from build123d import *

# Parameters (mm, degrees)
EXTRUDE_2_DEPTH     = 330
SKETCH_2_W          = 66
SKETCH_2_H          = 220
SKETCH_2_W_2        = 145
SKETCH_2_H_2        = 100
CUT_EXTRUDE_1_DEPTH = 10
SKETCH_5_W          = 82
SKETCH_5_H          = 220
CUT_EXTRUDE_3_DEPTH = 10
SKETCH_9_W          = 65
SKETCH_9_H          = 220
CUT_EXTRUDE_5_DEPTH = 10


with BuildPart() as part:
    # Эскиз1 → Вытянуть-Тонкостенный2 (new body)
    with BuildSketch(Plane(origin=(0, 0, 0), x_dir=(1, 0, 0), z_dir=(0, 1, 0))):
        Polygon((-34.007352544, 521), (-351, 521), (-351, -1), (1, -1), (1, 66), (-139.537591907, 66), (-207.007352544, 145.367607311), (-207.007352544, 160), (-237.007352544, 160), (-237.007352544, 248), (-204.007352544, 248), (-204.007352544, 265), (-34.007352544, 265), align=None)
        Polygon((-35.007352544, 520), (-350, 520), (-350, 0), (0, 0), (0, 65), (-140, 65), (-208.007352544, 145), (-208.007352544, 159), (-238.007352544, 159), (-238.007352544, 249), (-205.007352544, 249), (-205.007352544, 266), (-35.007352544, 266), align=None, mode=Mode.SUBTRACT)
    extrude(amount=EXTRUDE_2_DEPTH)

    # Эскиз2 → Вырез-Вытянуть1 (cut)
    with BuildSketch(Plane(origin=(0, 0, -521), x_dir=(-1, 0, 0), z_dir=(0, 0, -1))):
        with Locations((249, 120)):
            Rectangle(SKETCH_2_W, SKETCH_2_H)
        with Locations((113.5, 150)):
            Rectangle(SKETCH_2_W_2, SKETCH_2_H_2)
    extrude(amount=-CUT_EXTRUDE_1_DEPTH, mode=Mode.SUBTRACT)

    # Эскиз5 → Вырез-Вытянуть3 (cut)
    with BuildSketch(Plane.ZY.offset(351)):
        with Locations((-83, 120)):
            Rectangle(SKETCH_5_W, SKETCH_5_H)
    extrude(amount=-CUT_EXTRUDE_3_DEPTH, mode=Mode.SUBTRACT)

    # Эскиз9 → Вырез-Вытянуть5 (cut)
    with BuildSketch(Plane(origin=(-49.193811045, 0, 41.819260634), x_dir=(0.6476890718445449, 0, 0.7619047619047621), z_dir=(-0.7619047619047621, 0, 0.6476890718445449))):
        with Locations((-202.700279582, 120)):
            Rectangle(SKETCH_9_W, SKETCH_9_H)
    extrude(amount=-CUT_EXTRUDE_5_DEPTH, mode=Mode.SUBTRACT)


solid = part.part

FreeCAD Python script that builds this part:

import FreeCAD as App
import Part
import Sketcher
Q = App.Units.Quantity

doc = App.newDocument("Part")
body = doc.addObject("PartDesign::Body", "Body")

sketch1 = doc.addObject("Sketcher::SketchObject", "Sketch")
body.addObject(sketch1)
sketch1.AttachmentSupport = (doc.XZ_Plane, [""])
sketch1.MapMode = "FlatFace"
sketch1.addGeometry([
    Part.LineSegment(App.Vector(-34.007353, -521, 0), App.Vector(-351, -521, 0)),
    Part.LineSegment(App.Vector(-351, -521, 0), App.Vector(-351, 1, 0)),
    Part.LineSegment(App.Vector(-351, 1, 0), App.Vector(1, 1, 0)),
    Part.LineSegment(App.Vector(1, 1, 0), App.Vector(1, -66, 0)),
    Part.LineSegment(App.Vector(1, -66, 0), App.Vector(-139.537592, -66, 0)),
    Part.LineSegment(App.Vector(-139.537592, -66, 0), App.Vector(-207.007353, -145.367607, 0)),
    Part.LineSegment(App.Vector(-207.007353, -145.367607, 0), App.Vector(-207.007353, -160, 0)),
    Part.LineSegment(App.Vector(-207.007353, -160, 0), App.Vector(-237.007353, -160, 0)),
    Part.LineSegment(App.Vector(-237.007353, -160, 0), App.Vector(-237.007353, -248, 0)),
    Part.LineSegment(App.Vector(-237.007353, -248, 0), App.Vector(-204.007353, -248, 0)),
    Part.LineSegment(App.Vector(-204.007353, -248, 0), App.Vector(-204.007353, -265, 0)),
    Part.LineSegment(App.Vector(-204.007353, -265, 0), App.Vector(-34.007353, -265, 0)),
    Part.LineSegment(App.Vector(-34.007353, -265, 0), App.Vector(-34.007353, -521, 0)),
    Part.LineSegment(App.Vector(-350, -520, 0), App.Vector(-35.007353, -520, 0)),
    Part.LineSegment(App.Vector(-35.007353, -520, 0), App.Vector(-35.007353, -266, 0)),
    Part.LineSegment(App.Vector(-35.007353, -266, 0), App.Vector(-205.007353, -266, 0)),
    Part.LineSegment(App.Vector(-205.007353, -266, 0), App.Vector(-205.007353, -249, 0)),
    Part.LineSegment(App.Vector(-205.007353, -249, 0), App.Vector(-238.007353, -249, 0)),
    Part.LineSegment(App.Vector(-238.007353, -249, 0), App.Vector(-238.007353, -159, 0)),
    Part.LineSegment(App.Vector(-238.007353, -159, 0), App.Vector(-208.007353, -159, 0)),
    Part.LineSegment(App.Vector(-208.007353, -159, 0), App.Vector(-208.007353, -145, 0)),
    Part.LineSegment(App.Vector(-208.007353, -145, 0), App.Vector(-140, -65, 0)),
    Part.LineSegment(App.Vector(-140, -65, 0), App.Vector(0, -65, 0)),
    Part.LineSegment(App.Vector(0, -65, 0), App.Vector(0, 0, 0)),
    Part.LineSegment(App.Vector(0, 0, 0), App.Vector(-350, 0, 0)),
    Part.LineSegment(App.Vector(-350, 0, 0), App.Vector(-350, -520, 0)),
], False)
sketch1.addConstraint([
    Sketcher.Constraint("Coincident", 0, 2, 1, 1),
    Sketcher.Constraint("Coincident", 1, 2, 2, 1),
    Sketcher.Constraint("Coincident", 2, 2, 3, 1),
    Sketcher.Constraint("Coincident", 3, 2, 4, 1),
    Sketcher.Constraint("Coincident", 4, 2, 5, 1),
    Sketcher.Constraint("Coincident", 5, 2, 6, 1),
    Sketcher.Constraint("Coincident", 6, 2, 7, 1),
    Sketcher.Constraint("Coincident", 7, 2, 8, 1),
    Sketcher.Constraint("Coincident", 8, 2, 9, 1),
    Sketcher.Constraint("Coincident", 9, 2, 10, 1),
    Sketcher.Constraint("Coincident", 10, 2, 11, 1),
    Sketcher.Constraint("Coincident", 11, 2, 12, 1),
    Sketcher.Constraint("Coincident", 12, 2, 0, 1),
    Sketcher.Constraint("Coincident", 13, 2, 14, 1),
    Sketcher.Constraint("Coincident", 14, 2, 15, 1),
    Sketcher.Constraint("Coincident", 15, 2, 16, 1),
    Sketcher.Constraint("Coincident", 16, 2, 17, 1),
    Sketcher.Constraint("Coincident", 17, 2, 18, 1),
    Sketcher.Constraint("Coincident", 18, 2, 19, 1),
    Sketcher.Constraint("Coincident", 19, 2, 20, 1),
    Sketcher.Constraint("Coincident", 20, 2, 21, 1),
    Sketcher.Constraint("Coincident", 21, 2, 22, 1),
    Sketcher.Constraint("Coincident", 22, 2, 23, 1),
    Sketcher.Constraint("Coincident", 23, 2, 24, 1),
    Sketcher.Constraint("Coincident", 24, 2, 25, 1),
    Sketcher.Constraint("Coincident", 25, 2, 13, 1),
    Sketcher.Constraint("Horizontal", 0),
    Sketcher.Constraint("Vertical", 1),
    Sketcher.Constraint("Horizontal", 2),
    Sketcher.Constraint("Vertical", 3),
    Sketcher.Constraint("Horizontal", 4),
    Sketcher.Constraint("Vertical", 6),
    Sketcher.Constraint("Horizontal", 7),
    Sketcher.Constraint("Vertical", 8),
    Sketcher.Constraint("Horizontal", 9),
    Sketcher.Constraint("Vertical", 10),
    Sketcher.Constraint("Horizontal", 11),
    Sketcher.Constraint("Vertical", 12),
    Sketcher.Constraint("Horizontal", 13),
    Sketcher.Constraint("Vertical", 14),
    Sketcher.Constraint("Horizontal", 15),
    Sketcher.Constraint("Vertical", 16),
    Sketcher.Constraint("Horizontal", 17),
    Sketcher.Constraint("Vertical", 18),
    Sketcher.Constraint("Horizontal", 19),
    Sketcher.Constraint("Vertical", 20),
    Sketcher.Constraint("Horizontal", 22),
    Sketcher.Constraint("Vertical", 23),
    Sketcher.Constraint("Horizontal", 24),
    Sketcher.Constraint("Vertical", 25),
    Sketcher.Constraint("Coincident", 23, 2, -1, 1),
    Sketcher.Constraint("Parallel", 5, 21),
    Sketcher.Constraint("Equal", 11, 15),
    Sketcher.Constraint("Equal", 9, 17),
    Sketcher.Constraint("Equal", 7, 19),
    Sketcher.Constraint("Equal", 10, 16),
    Sketcher.Constraint("DistanceX", 2, 1, 2, 2, Q("352 mm")),
    Sketcher.Constraint("DistanceX", 7, 2, 7, 1, Q("30 mm")),
    Sketcher.Constraint("DistanceX", 9, 1, 9, 2, Q("33 mm")),
    Sketcher.Constraint("DistanceX", 11, 1, 11, 2, Q("170 mm")),
    Sketcher.Constraint("DistanceX", 22, 1, 22, 2, Q("140 mm")),
    Sketcher.Constraint("DistanceX", 24, 2, 24, 1, Q("350 mm")),
    Sketcher.Constraint("DistanceY", 1, 1, 1, 2, Q("522 mm")),
    Sketcher.Constraint("DistanceY", 3, 2, 3, 1, Q("67 mm")),
    Sketcher.Constraint("DistanceY", 8, 2, 8, 1, Q("88 mm")),
    Sketcher.Constraint("DistanceY", 10, 2, 10, 1, Q("17 mm")),
    Sketcher.Constraint("DistanceY", 12, 2, 12, 1, Q("256 mm")),
    Sketcher.Constraint("DistanceY", 14, 1, 14, 2, Q("254 mm")),
    Sketcher.Constraint("DistanceY", 18, 1, 18, 2, Q("90 mm")),
    Sketcher.Constraint("DistanceY", 20, 1, 20, 2, Q("14 mm")),
    Sketcher.Constraint("DistanceY", 23, 1, 23, 2, Q("65 mm")),
    Sketcher.Constraint("DistanceY", 25, 2, 25, 1, Q("520 mm")),
    Sketcher.Constraint("Distance", 21, Q("105 mm")),
    Sketcher.Constraint("DistanceX", 0, 2, -1, 1, Q("351 mm")),
    Sketcher.Constraint("DistanceY", 0, 2, -1, 1, Q("521 mm")),
    Sketcher.Constraint("DistanceX", 13, 2, 12, 2, Q("1 mm")),
    Sketcher.Constraint("DistanceX", 4, 2, 4, 1, Q("140.537592 mm")),
])
pad1 = doc.addObject("PartDesign::Pad", "Pad")
body.addObject(pad1)
pad1.Profile = sketch1
pad1.Length = 330
pad1.Reversed = True

sketch2 = doc.addObject("Sketcher::SketchObject", "Sketch001")
body.addObject(sketch2)
sketch2.AttachmentSupport = (doc.XY_Plane, [""])
sketch2.MapMode = "FlatFace"
sketch2.AttachmentOffset = App.Placement(App.Vector(0, 0, -521), App.Rotation())
sketch2.addGeometry([
    Part.LineSegment(App.Vector(-216, 230, 0), App.Vector(-216, 10, 0)),
    Part.LineSegment(App.Vector(-216, 10, 0), App.Vector(-282, 10, 0)),
    Part.LineSegment(App.Vector(-282, 10, 0), App.Vector(-282, 230, 0)),
    Part.LineSegment(App.Vector(-282, 230, 0), App.Vector(-216, 230, 0)),
    Part.LineSegment(App.Vector(-41, 200, 0), App.Vector(-41, 100, 0)),
    Part.LineSegment(App.Vector(-41, 100, 0), App.Vector(-186, 100, 0)),
    Part.LineSegment(App.Vector(-186, 100, 0), App.Vector(-186, 200, 0)),
    Part.LineSegment(App.Vector(-186, 200, 0), App.Vector(-41, 200, 0)),
], False)
sketch2.addConstraint([
    Sketcher.Constraint("Coincident", 0, 2, 1, 1),
    Sketcher.Constraint("Coincident", 1, 2, 2, 1),
    Sketcher.Constraint("Coincident", 2, 2, 3, 1),
    Sketcher.Constraint("Coincident", 3, 2, 0, 1),
    Sketcher.Constraint("Coincident", 4, 2, 5, 1),
    Sketcher.Constraint("Coincident", 5, 2, 6, 1),
    Sketcher.Constraint("Coincident", 6, 2, 7, 1),
    Sketcher.Constraint("Coincident", 7, 2, 4, 1),
    Sketcher.Constraint("Vertical", 0),
    Sketcher.Constraint("Horizontal", 1),
    Sketcher.Constraint("Vertical", 2),
    Sketcher.Constraint("Horizontal", 3),
    Sketcher.Constraint("Vertical", 4),
    Sketcher.Constraint("Horizontal", 5),
    Sketcher.Constraint("Vertical", 6),
    Sketcher.Constraint("Horizontal", 7),
    Sketcher.Constraint("DistanceX", 1, 2, 1, 1, Q("66 mm")),
    Sketcher.Constraint("DistanceX", 5, 2, 5, 1, Q("145 mm")),
    Sketcher.Constraint("DistanceY", 0, 2, 0, 1, Q("220 mm")),
    Sketcher.Constraint("DistanceY", 4, 2, 4, 1, Q("100 mm")),
    Sketcher.Constraint("DistanceX", 0, 2, -1, 1, Q("216 mm")),
    Sketcher.Constraint("DistanceY", -1, 1, 0, 2, Q("10 mm")),
    Sketcher.Constraint("DistanceX", 4, 2, -1, 1, Q("41 mm")),
    Sketcher.Constraint("DistanceY", -1, 1, 4, 2, Q("100 mm")),
])
pocket1 = doc.addObject("PartDesign::Pocket", "Pocket")
body.addObject(pocket1)
pocket1.Profile = sketch2
pocket1.Length = 10
pocket1.Reversed = True

sketch3 = doc.addObject("Sketcher::SketchObject", "Sketch002")
body.addObject(sketch3)
sketch3.AttachmentSupport = (doc.YZ_Plane, [""])
sketch3.MapMode = "FlatFace"
sketch3.AttachmentOffset = App.Placement(App.Vector(0, 0, -351), App.Rotation())
sketch3.addGeometry([
    Part.LineSegment(App.Vector(230, -124, 0), App.Vector(10, -124, 0)),
    Part.LineSegment(App.Vector(10, -124, 0), App.Vector(10, -42, 0)),
    Part.LineSegment(App.Vector(10, -42, 0), App.Vector(230, -42, 0)),
    Part.LineSegment(App.Vector(230, -42, 0), App.Vector(230, -124, 0)),
], False)
sketch3.addConstraint([
    Sketcher.Constraint("Coincident", 0, 2, 1, 1),
    Sketcher.Constraint("Coincident", 1, 2, 2, 1),
    Sketcher.Constraint("Coincident", 2, 2, 3, 1),
    Sketcher.Constraint("Coincident", 3, 2, 0, 1),
    Sketcher.Constraint("Horizontal", 0),
    Sketcher.Constraint("Vertical", 1),
    Sketcher.Constraint("Horizontal", 2),
    Sketcher.Constraint("Vertical", 3),
    Sketcher.Constraint("DistanceX", 0, 2, 0, 1, Q("220 mm")),
    Sketcher.Constraint("DistanceY", 1, 1, 1, 2, Q("82 mm")),
    Sketcher.Constraint("DistanceX", -1, 1, 0, 2, Q("10 mm")),
    Sketcher.Constraint("DistanceY", 0, 2, -1, 1, Q("124 mm")),
])
pocket2 = doc.addObject("PartDesign::Pocket", "Pocket001")
body.addObject(pocket2)
pocket2.Profile = sketch3
pocket2.Length = 10
pocket2.Reversed = True

sketch4 = doc.addObject("Sketcher::SketchObject", "Sketch003")
body.addObject(sketch4)
sketch4.Placement = App.Placement(App.Vector(-49.193811, 0, 41.819261), App.Rotation(App.Vector(0.647689072, 0, 0.761904762), App.Vector(0, 1, 0), App.Vector(-0.761904762, 0, 0.647689072), "ZXY"))
sketch4.addGeometry([
    Part.LineSegment(App.Vector(-235.20028, 230, 0), App.Vector(-235.20028, 10, 0)),
    Part.LineSegment(App.Vector(-235.20028, 10, 0), App.Vector(-170.20028, 10, 0)),
    Part.LineSegment(App.Vector(-170.20028, 10, 0), App.Vector(-170.20028, 230, 0)),
    Part.LineSegment(App.Vector(-170.20028, 230, 0), App.Vector(-235.20028, 230, 0)),
], False)
sketch4.addConstraint([
    Sketcher.Constraint("Coincident", 0, 2, 1, 1),
    Sketcher.Constraint("Coincident", 1, 2, 2, 1),
    Sketcher.Constraint("Coincident", 2, 2, 3, 1),
    Sketcher.Constraint("Coincident", 3, 2, 0, 1),
    Sketcher.Constraint("Vertical", 0),
    Sketcher.Constraint("Horizontal", 1),
    Sketcher.Constraint("Vertical", 2),
    Sketcher.Constraint("Horizontal", 3),
    Sketcher.Constraint("DistanceX", 1, 1, 1, 2, Q("65 mm")),
    Sketcher.Constraint("DistanceY", 0, 2, 0, 1, Q("220 mm")),
    Sketcher.Constraint("DistanceY", -1, 1, 0, 2, Q("10 mm")),
    Sketcher.Constraint("DistanceX", 0, 2, -1, 1, Q("235.20028 mm")),
])
pocket3 = doc.addObject("PartDesign::Pocket", "Pocket002")
body.addObject(pocket3)
pocket3.Profile = sketch4
pocket3.Length = 10

doc.recompute()
